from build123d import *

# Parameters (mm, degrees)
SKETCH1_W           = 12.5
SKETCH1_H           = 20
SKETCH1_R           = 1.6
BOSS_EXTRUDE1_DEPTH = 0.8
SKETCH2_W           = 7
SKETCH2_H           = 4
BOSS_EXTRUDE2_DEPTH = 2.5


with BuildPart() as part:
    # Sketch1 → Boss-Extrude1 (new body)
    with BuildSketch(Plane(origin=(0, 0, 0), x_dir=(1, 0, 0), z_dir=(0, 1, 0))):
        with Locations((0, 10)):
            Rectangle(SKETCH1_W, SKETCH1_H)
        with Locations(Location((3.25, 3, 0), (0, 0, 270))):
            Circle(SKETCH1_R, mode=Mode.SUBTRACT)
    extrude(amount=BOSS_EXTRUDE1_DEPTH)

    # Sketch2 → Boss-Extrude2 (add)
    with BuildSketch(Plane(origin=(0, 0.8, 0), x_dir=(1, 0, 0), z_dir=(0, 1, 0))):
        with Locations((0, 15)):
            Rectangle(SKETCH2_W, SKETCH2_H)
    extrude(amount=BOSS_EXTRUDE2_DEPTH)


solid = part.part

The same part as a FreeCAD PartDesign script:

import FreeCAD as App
import Part
import Sketcher

V = App.Vector
Q = App.Units.Quantity

doc = App.newDocument("Part")
body = doc.addObject("PartDesign::Body", "Body")

sketch1 = body.newObject("Sketcher::SketchObject", "Sketch")
sketch1.AttachmentSupport = (doc.getObject("XZ_Plane"), [""])
sketch1.MapMode = "FlatFace"
sketch1.addGeometry([
    Part.LineSegment(V(-6.25, -20, 0), V(-6.25, 0, 0)),
    Part.LineSegment(V(-6.25, 0, 0), V(6.25, 0, 0)),
    Part.LineSegment(V(6.25, 0, 0), V(6.25, -20, 0)),
    Part.LineSegment(V(6.25, -20, 0), V(-6.25, -20, 0)),
    Part.Circle(V(3.25, -3, 0), V(0, 0, 1), 1.6),
], False)
sketch1.addConstraint([
    Sketcher.Constraint("Coincident", 0, 2, 1, 1),
    Sketcher.Constraint("Coincident", 1, 2, 2, 1),
    Sketcher.Constraint("Coincident", 2, 2, 3, 1),
    Sketcher.Constraint("Coincident", 3, 2, 0, 1),
    Sketcher.Constraint("Vertical", 0),
    Sketcher.Constraint("Horizontal", 1),
    Sketcher.Constraint("Vertical", 2),
    Sketcher.Constraint("Horizontal", 3),
    Sketcher.Constraint("Symmetric", 0, 2, 1, 2, -1, 1),
    Sketcher.Constraint("Diameter", 4, Q("3.2 mm")),
    Sketcher.Constraint("DistanceY", 0, 1, 0, 2, Q("20 mm")),
    Sketcher.Constraint("DistanceX", 1, 1, 1, 2, Q("12.5 mm")),
    Sketcher.Constraint("DistanceY", 4, 3, -1, 1, Q("3 mm")),
    Sketcher.Constraint("DistanceX", 4, 3, 1, 2, Q("3 mm")),
])
pad1 = body.newObject("PartDesign::Pad", "Pad")
pad1.Profile = sketch1
pad1.Length = 0.8
pad1.Reversed = True

sketch2 = body.newObject("Sketcher::SketchObject", "Sketch001")
sketch2.AttachmentSupport = (doc.getObject("XZ_Plane"), [""])
sketch2.MapMode = "FlatFace"
sketch2.AttachmentOffset = App.Placement(V(0, 0, -0.8), App.Rotation())
sketch2.addGeometry([
    Part.LineSegment(V(-3.5, -17, 0), V(-3.5, -13, 0)),
    Part.LineSegment(V(-3.5, -13, 0), V(3.5, -13, 0)),
    Part.LineSegment(V(3.5, -13, 0), V(3.5, -17, 0)),
    Part.LineSegment(V(3.5, -17, 0), V(-3.5, -17, 0)),
], False)
sketch2.addConstraint([
    Sketcher.Constraint("Coincident", 0, 2, 1, 1),
    Sketcher.Constraint("Coincident", 1, 2, 2, 1),
    Sketcher.Constraint("Coincident", 2, 2, 3, 1),
    Sketcher.Constraint("Coincident", 3, 2, 0, 1),
    Sketcher.Constraint("Vertical", 0),
    Sketcher.Constraint("Horizontal", 1),
    Sketcher.Constraint("Vertical", 2),
    Sketcher.Constraint("Horizontal", 3),
    Sketcher.Constraint("DistanceX", 1, 1, 1, 2, Q("7 mm")),
    Sketcher.Constraint("DistanceY", 0, 1, 0, 2, Q("4 mm")),
    Sketcher.Constraint("DistanceY", 0, 2, -1, 1, Q("13 mm")),
    Sketcher.Constraint("DistanceX", 0, 2, -1, 1, Q("3.5 mm")),
])
pad2 = body.newObject("PartDesign::Pad", "Pad001")
pad2.Profile = sketch2
pad2.Length = 2.5
pad2.Reversed = True

doc.recompute()
